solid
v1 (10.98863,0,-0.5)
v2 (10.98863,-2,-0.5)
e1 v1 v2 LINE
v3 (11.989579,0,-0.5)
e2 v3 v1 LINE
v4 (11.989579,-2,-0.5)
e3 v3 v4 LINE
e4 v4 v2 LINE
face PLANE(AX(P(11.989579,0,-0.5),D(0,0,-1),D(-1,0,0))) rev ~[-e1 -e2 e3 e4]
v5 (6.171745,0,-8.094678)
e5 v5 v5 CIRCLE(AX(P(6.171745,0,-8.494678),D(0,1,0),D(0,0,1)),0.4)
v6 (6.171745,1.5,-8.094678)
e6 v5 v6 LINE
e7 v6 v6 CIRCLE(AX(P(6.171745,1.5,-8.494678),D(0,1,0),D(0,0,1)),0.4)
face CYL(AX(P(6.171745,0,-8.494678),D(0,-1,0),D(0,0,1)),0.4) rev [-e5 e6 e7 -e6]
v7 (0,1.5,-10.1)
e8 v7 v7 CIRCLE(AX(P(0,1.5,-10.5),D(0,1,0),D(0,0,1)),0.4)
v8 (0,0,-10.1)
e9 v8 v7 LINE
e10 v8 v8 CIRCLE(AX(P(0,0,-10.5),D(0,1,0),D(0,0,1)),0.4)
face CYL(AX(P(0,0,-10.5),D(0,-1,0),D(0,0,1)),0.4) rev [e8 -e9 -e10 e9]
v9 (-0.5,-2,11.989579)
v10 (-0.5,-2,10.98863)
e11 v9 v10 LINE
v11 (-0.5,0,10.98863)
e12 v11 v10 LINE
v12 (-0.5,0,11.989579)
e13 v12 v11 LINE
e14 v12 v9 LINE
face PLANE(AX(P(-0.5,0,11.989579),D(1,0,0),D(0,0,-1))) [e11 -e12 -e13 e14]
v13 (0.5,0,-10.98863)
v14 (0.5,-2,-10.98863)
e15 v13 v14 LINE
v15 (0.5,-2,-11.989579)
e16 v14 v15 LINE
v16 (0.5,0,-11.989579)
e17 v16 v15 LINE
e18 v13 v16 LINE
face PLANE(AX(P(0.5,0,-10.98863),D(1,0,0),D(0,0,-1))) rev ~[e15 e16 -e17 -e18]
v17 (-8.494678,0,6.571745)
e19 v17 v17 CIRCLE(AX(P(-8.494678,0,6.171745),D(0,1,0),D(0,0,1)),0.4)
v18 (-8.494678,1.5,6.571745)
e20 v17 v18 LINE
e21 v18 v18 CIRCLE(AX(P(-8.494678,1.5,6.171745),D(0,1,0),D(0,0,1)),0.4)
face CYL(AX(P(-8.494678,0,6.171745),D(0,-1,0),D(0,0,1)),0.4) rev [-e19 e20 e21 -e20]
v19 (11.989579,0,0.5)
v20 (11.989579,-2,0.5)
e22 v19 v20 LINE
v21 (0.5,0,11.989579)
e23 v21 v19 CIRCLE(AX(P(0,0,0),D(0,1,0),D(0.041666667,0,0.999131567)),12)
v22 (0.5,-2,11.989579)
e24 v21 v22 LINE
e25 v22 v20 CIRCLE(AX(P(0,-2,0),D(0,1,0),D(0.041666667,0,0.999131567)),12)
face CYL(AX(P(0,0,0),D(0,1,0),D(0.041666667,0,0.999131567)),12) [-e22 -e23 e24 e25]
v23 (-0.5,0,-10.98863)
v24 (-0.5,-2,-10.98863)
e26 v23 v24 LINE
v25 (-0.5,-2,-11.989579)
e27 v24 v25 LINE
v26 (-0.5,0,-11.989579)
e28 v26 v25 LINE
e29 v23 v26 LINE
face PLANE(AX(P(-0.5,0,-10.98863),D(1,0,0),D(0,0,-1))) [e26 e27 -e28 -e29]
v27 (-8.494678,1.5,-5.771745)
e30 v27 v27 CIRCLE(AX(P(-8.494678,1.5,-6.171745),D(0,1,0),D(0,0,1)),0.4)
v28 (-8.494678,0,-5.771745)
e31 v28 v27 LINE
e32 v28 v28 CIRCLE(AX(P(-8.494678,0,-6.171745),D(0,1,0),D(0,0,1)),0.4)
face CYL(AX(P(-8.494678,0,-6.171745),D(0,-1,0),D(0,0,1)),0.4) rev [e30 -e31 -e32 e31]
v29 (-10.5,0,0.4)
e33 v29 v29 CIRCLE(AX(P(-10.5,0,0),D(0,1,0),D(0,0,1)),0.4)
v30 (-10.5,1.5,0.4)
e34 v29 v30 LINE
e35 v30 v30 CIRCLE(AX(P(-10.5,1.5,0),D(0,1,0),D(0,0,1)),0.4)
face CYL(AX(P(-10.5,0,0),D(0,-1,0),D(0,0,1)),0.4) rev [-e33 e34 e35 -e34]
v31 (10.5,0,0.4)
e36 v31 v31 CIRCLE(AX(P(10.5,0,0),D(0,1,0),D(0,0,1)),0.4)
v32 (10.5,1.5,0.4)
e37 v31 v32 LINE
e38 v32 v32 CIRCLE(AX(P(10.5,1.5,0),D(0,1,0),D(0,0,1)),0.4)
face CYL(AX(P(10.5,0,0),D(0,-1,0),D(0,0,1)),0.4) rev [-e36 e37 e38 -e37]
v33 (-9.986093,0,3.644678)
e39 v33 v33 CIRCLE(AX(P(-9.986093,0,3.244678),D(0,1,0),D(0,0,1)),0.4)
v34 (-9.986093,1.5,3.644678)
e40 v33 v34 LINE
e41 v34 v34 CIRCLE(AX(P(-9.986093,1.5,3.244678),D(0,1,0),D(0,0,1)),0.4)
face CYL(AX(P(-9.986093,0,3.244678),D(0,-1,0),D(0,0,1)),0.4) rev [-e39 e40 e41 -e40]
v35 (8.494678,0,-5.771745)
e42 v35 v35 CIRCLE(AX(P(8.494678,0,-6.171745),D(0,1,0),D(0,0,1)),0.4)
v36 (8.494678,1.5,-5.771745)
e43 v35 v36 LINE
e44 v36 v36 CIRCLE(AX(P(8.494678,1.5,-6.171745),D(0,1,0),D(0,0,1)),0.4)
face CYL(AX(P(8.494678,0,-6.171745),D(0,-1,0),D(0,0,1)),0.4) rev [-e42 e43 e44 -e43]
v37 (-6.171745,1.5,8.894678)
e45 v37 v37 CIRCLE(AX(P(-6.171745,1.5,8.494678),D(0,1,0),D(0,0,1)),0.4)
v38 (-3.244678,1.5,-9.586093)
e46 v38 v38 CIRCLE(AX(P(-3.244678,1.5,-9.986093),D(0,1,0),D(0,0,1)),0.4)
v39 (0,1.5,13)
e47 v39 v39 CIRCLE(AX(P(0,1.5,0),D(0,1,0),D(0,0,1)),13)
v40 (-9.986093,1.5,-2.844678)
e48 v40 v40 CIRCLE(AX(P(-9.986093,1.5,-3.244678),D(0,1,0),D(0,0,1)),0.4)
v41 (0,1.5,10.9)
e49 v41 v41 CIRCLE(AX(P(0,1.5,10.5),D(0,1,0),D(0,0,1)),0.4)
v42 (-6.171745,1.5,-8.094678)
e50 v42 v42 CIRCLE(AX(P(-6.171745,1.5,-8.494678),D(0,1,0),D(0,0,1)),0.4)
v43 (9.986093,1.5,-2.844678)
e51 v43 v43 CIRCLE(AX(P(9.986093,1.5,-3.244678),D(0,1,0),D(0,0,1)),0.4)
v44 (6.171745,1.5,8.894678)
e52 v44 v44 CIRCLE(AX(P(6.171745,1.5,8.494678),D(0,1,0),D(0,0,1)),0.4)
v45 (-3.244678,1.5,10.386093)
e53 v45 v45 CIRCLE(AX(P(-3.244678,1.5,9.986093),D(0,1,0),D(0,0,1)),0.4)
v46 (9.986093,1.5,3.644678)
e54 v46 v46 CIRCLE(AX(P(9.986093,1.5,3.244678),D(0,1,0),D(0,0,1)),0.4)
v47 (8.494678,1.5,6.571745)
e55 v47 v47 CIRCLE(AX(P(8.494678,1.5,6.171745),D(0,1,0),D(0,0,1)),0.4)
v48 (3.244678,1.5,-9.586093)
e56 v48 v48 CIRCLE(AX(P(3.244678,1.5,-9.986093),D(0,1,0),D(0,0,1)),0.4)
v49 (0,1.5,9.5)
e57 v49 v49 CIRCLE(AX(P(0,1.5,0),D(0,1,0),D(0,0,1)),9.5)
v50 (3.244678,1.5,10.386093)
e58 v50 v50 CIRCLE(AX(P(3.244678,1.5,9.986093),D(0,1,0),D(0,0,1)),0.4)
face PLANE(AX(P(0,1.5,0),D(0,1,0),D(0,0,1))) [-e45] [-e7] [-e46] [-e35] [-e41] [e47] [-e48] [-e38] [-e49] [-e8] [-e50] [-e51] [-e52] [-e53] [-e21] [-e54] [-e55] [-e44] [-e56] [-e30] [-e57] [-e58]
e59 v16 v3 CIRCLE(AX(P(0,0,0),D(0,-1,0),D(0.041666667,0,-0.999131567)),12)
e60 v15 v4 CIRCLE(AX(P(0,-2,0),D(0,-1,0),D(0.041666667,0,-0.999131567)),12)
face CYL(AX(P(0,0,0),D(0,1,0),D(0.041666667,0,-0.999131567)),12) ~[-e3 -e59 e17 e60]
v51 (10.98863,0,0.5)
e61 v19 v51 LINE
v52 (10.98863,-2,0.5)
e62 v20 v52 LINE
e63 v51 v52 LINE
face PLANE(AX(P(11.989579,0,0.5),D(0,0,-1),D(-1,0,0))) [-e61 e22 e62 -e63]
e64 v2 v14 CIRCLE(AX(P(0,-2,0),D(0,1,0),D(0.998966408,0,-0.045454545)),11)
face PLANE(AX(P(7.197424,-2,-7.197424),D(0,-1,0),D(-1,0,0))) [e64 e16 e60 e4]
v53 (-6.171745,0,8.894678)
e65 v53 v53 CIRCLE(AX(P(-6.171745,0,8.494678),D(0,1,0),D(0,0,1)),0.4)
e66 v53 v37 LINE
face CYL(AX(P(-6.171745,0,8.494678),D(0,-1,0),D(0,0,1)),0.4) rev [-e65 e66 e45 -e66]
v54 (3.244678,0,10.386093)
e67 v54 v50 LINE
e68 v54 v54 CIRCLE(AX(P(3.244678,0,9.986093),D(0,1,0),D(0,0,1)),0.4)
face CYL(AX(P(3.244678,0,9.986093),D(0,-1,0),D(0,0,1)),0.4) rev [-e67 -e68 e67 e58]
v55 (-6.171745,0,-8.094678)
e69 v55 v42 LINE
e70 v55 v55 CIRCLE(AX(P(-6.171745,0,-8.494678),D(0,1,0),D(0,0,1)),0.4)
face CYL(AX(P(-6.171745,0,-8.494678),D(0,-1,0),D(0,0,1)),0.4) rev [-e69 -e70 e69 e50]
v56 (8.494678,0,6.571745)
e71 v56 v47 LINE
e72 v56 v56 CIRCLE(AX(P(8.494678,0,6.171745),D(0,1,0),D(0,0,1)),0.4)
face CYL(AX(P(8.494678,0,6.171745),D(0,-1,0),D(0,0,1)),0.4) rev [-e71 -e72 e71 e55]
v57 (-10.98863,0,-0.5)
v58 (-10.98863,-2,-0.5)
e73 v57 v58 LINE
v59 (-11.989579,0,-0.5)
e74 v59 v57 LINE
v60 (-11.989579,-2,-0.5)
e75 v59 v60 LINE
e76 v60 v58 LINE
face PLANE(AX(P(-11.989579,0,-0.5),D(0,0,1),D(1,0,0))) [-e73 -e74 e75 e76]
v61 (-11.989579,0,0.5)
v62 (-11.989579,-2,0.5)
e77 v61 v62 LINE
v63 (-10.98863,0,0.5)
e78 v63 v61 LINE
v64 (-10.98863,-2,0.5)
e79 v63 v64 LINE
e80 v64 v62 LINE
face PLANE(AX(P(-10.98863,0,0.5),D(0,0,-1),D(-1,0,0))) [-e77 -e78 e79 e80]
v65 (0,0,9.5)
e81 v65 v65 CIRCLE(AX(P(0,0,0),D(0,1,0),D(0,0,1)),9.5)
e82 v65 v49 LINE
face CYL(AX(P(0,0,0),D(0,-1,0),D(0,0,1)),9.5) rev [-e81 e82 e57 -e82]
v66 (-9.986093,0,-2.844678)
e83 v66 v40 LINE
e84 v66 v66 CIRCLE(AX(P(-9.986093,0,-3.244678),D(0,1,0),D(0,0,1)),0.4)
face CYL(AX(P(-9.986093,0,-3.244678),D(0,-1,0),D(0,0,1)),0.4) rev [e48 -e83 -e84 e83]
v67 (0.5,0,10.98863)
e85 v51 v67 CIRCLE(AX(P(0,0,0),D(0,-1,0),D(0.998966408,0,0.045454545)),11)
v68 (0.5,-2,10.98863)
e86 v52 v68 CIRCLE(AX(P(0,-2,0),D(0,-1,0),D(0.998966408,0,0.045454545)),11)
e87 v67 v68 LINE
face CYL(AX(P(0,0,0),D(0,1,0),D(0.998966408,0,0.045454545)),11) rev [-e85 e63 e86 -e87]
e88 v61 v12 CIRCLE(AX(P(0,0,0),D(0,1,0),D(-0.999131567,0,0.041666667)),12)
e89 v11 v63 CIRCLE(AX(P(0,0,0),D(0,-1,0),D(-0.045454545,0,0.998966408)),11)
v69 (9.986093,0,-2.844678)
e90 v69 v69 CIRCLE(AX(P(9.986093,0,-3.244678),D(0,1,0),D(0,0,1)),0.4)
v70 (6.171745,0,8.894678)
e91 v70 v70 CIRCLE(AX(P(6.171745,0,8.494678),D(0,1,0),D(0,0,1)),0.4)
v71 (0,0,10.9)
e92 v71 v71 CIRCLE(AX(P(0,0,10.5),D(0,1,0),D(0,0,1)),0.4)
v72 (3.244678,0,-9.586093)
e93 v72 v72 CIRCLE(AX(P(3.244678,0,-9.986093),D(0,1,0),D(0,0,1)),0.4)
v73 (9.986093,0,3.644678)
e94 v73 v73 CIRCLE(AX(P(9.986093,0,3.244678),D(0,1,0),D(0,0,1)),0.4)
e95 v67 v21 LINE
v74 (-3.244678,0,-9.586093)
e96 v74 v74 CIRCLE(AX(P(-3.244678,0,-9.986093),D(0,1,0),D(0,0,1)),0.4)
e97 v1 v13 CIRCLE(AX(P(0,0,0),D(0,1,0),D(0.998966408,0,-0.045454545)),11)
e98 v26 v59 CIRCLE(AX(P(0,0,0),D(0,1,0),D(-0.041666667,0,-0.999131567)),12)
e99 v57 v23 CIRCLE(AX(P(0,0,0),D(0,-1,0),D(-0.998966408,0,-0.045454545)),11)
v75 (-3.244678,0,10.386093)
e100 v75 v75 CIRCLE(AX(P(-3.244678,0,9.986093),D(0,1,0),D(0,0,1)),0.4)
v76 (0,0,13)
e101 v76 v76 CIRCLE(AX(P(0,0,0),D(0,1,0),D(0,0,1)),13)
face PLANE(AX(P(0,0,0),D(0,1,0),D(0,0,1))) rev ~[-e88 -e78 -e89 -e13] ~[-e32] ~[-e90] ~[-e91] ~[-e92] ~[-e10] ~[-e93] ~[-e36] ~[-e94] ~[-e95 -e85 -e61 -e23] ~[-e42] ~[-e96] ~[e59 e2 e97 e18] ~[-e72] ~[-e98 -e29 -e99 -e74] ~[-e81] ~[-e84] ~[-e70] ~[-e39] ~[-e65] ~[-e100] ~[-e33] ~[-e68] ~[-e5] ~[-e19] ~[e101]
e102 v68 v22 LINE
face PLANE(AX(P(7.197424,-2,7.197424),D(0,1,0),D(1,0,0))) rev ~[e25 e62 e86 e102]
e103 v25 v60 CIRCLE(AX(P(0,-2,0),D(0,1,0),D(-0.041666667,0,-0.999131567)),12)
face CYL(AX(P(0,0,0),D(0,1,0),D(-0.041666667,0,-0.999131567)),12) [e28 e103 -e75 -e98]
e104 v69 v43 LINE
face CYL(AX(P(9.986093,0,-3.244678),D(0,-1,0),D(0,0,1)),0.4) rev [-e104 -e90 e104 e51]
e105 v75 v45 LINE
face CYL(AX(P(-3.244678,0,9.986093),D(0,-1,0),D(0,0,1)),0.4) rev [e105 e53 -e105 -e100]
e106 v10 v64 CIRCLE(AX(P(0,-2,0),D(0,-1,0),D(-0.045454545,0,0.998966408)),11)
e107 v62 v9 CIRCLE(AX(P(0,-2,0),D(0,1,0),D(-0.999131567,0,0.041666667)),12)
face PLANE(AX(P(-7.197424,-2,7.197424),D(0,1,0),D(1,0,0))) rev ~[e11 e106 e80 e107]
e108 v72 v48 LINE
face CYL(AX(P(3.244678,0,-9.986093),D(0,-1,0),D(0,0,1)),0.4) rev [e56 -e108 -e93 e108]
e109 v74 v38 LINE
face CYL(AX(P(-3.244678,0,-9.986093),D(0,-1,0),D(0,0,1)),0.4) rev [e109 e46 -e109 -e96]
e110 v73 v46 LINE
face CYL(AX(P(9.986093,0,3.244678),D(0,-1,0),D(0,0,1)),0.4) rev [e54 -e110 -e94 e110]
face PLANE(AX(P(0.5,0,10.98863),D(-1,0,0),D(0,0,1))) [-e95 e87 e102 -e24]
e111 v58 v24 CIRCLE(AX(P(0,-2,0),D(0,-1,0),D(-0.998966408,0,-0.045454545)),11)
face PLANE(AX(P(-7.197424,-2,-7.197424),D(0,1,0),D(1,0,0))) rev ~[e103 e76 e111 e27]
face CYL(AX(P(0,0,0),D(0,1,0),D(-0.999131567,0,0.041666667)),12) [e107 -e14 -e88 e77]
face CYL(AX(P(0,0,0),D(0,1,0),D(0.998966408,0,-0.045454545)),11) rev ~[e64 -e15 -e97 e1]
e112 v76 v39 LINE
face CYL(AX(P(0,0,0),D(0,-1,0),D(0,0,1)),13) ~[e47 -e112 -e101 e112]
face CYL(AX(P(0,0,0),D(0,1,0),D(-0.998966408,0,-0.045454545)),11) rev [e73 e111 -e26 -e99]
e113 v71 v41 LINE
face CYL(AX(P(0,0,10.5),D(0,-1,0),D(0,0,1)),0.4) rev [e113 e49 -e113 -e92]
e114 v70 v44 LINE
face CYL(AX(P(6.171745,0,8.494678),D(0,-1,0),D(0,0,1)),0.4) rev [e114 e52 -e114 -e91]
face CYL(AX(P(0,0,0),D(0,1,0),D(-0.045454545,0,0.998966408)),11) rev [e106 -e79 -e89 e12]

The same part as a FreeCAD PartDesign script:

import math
import FreeCAD as App
import Part
import Sketcher

doc = App.newDocument("Part")
body = doc.addObject("PartDesign::Body", "Body")

sketch1 = body.newObject("Sketcher::SketchObject", "Sketch")
sketch1.AttachmentSupport = (doc.getObject("XZ_Plane"), [""])
sketch1.MapMode = "FlatFace"
sketch1.addGeometry(Part.Circle(App.Vector(0, 0, 0), App.Vector(0, 0, 1), 13), False)
sketch1.addGeometry(Part.Circle(App.Vector(-8.494678, -6.171745, 0), App.Vector(0, 0, 1), 0.4), False)
sketch1.addGeometry(Part.Circle(App.Vector(-6.171745, -8.494678, 0), App.Vector(0, 0, 1), 0.4), False)
sketch1.addGeometry(Part.Circle(App.Vector(-9.986093, -3.244678, 0), App.Vector(0, 0, 1), 0.4), False)
sketch1.addGeometry(Part.Circle(App.Vector(-3.244678, -9.986093, 0), App.Vector(0, 0, 1), 0.4), False)
sketch1.addGeometry(Part.Circle(App.Vector(0, -10.5, 0), App.Vector(0, 0, 1), 0.4), False)
sketch1.addGeometry(Part.Circle(App.Vector(0, 0, 0), App.Vector(0, 0, 1), 9.5), False)
sketch1.addGeometry(Part.Circle(App.Vector(-10.5, 0, 0), App.Vector(0, 0, 1), 0.4), False)
sketch1.addGeometry(Part.Circle(App.Vector(-9.986093, 3.244678, 0), App.Vector(0, 0, 1), 0.4), False)
sketch1.addGeometry(Part.Circle(App.Vector(-8.494678, 6.171745, 0), App.Vector(0, 0, 1), 0.4), False)
sketch1.addGeometry(Part.Circle(App.Vector(-6.171745, 8.494678, 0), App.Vector(0, 0, 1), 0.4), False)
sketch1.addGeometry(Part.Circle(App.Vector(-3.244678, 9.986093, 0), App.Vector(0, 0, 1), 0.4), False)
sketch1.addGeometry(Part.Circle(App.Vector(3.244678, -9.986093, 0), App.Vector(0, 0, 1), 0.4), False)
sketch1.addGeometry(Part.Circle(App.Vector(6.171745, -8.494678, 0), App.Vector(0, 0, 1), 0.4), False)
sketch1.addGeometry(Part.Circle(App.Vector(8.494678, -6.171745, 0), App.Vector(0, 0, 1), 0.4), False)
sketch1.addGeometry(Part.Circle(App.Vector(9.986093, -3.244678, 0), App.Vector(0, 0, 1), 0.4), False)
sketch1.addGeometry(Part.Circle(App.Vector(10.5, 0, 0), App.Vector(0, 0, 1), 0.4), False)
sketch1.addGeometry(Part.Circle(App.Vector(0, 10.5, 0), App.Vector(0, 0, 1), 0.4), False)
sketch1.addGeometry(Part.Circle(App.Vector(3.244678, 9.986093, 0), App.Vector(0, 0, 1), 0.4), False)
sketch1.addGeometry(Part.Circle(App.Vector(9.986093, 3.244678, 0), App.Vector(0, 0, 1), 0.4), False)
sketch1.addGeometry(Part.Circle(App.Vector(6.171745, 8.494678, 0), App.Vector(0, 0, 1), 0.4), False)
sketch1.addGeometry(Part.Circle(App.Vector(8.494678, 6.171745, 0), App.Vector(0, 0, 1), 0.4), False)
sketch1.addConstraint(Sketcher.Constraint("Coincident", 0, 3, -1, 1))
sketch1.addConstraint(Sketcher.Constraint("Coincident", 6, 3, -1, 1))
sketch1.addConstraint(Sketcher.Constraint("Equal", 1, 2))
sketch1.addConstraint(Sketcher.Constraint("Equal", 2, 3))
sketch1.addConstraint(Sketcher.Constraint("Equal", 3, 4))
sketch1.addConstraint(Sketcher.Constraint("Equal", 4, 5))
sketch1.addConstraint(Sketcher.Constraint("Equal", 5, 7))
sketch1.addConstraint(Sketcher.Constraint("Equal", 7, 8))
sketch1.addConstraint(Sketcher.Constraint("Equal", 8, 9))
sketch1.addConstraint(Sketcher.Constraint("Equal", 9, 10))
sketch1.addConstraint(Sketcher.Constraint("Equal", 10, 11))
sketch1.addConstraint(Sketcher.Constraint("Equal", 11, 12))
sketch1.addConstraint(Sketcher.Constraint("Equal", 12, 13))
sketch1.addConstraint(Sketcher.Constraint("Equal", 13, 14))
sketch1.addConstraint(Sketcher.Constraint("Equal", 14, 15))
sketch1.addConstraint(Sketcher.Constraint("Equal", 15, 16))
sketch1.addConstraint(Sketcher.Constraint("Equal", 16, 17))
sketch1.addConstraint(Sketcher.Constraint("Equal", 17, 18))
sketch1.addConstraint(Sketcher.Constraint("Equal", 18, 19))
sketch1.addConstraint(Sketcher.Constraint("Equal", 19, 20))
sketch1.addConstraint(Sketcher.Constraint("Equal", 20, 21))
sketch1.addConstraint(Sketcher.Constraint("Symmetric", 11, 3, 12, 3, -1, 1))
sketch1.addConstraint(Sketcher.Constraint("Symmetric", 10, 3, 13, 3, -1, 1))
sketch1.addConstraint(Sketcher.Constraint("Symmetric", 9, 3, 14, 3, -1, 1))
sketch1.addConstraint(Sketcher.Constraint("Symmetric", 8, 3, 15, 3, -1, 1))
sketch1.addConstraint(Sketcher.Constraint("Symmetric", 7, 3, 16, 3, -1, 1))
sketch1.addConstraint(Sketcher.Constraint("Symmetric", 5, 3, 17, 3, -1, 1))
sketch1.addConstraint(Sketcher.Constraint("Symmetric", 4, 3, 18, 3, -1, 1))
sketch1.addConstraint(Sketcher.Constraint("Symmetric", 3, 3, 19, 3, -1, 1))
sketch1.addConstraint(Sketcher.Constraint("Symmetric", 2, 3, 20, 3, -1, 1))
sketch1.addConstraint(Sketcher.Constraint("Symmetric", 1, 3, 21, 3, -1, 1))
sketch1.addConstraint(Sketcher.Constraint("Symmetric", 4, 3, 12, 3, -2))
sketch1.addConstraint(Sketcher.Constraint("Symmetric", 2, 3, 13, 3, -2))
sketch1.addConstraint(Sketcher.Constraint("Symmetric", 1, 3, 14, 3, -2))
sketch1.addConstraint(Sketcher.Constraint("Symmetric", 3, 3, 15, 3, -2))
sketch1.addConstraint(Sketcher.Constraint("PointOnObject", 5, 3, -2))
sketch1.addConstraint(Sketcher.Constraint("PointOnObject", 7, 3, -1))
sketch1.addConstraint(Sketcher.Constraint("Diameter", 0, 26.0))
sketch1.addConstraint(Sketcher.Constraint("Diameter", 6, 19.0))
sketch1.addConstraint(Sketcher.Constraint("Diameter", 1, 0.8))
sketch1.addConstraint(Sketcher.Constraint("DistanceY", 5, 3, -1, 1, 10.5))
sketch1.addConstraint(Sketcher.Constraint("DistanceX", 7, 3, -1, 1, 10.5))
sketch1.addConstraint(Sketcher.Constraint("DistanceY", 2, 3, 3, 3, 5.25))
sketch1.addConstraint(Sketcher.Constraint("DistanceX", 1, 3, 4, 3, 5.25))
sketch1.addConstraint(Sketcher.Constraint("DistanceX", 1, 3, -1, 1, 8.494678))
sketch1.addConstraint(Sketcher.Constraint("DistanceY", 2, 3, -1, 1, 8.494678))
sketch1.addConstraint(Sketcher.Constraint("DistanceX", 3, 3, 2, 3, 3.814348))
sketch1.addConstraint(Sketcher.Constraint("DistanceY", 4, 3, 1, 3, 3.814348))
sketch1.addConstraint(Sketcher.Constraint("DistanceY", 1, 3, -1, 1, 6.171745))
sketch1.addConstraint(Sketcher.Constraint("DistanceX", 2, 3, -1, 1, 6.171745))
pad1 = body.newObject("PartDesign::Pad", "Pad")
pad1.Profile = sketch1
pad1.Length = 1.5
pad1.Reversed = True

sketch2 = body.newObject("Sketcher::SketchObject", "Sketch001")
sketch2.AttachmentSupport = (doc.getObject("XZ_Plane"), [""])
sketch2.MapMode = "FlatFace"
sketch2.addGeometry(Part.LineSegment(App.Vector(10.98863, -0.5, 0), App.Vector(11.989579, -0.5, 0)), False)
sketch2.addGeometry(Part.ArcOfCircle(Part.Circle(App.Vector(0, 0, 0), App.Vector(0, 0, 1), 12), math.radians(-87.611985), math.radians(-2.388015)), False)
sketch2.addGeometry(Part.LineSegment(App.Vector(0.5, -11.989579, 0), App.Vector(0.5, -10.98863, 0)), False)
sketch2.addGeometry(Part.ArcOfCircle(Part.Circle(App.Vector(0, 0, 0), App.Vector(0, 0, 1), 11), math.radians(-87.394749), math.radians(-2.605251)), False)
sketch2.addGeometry(Part.LineSegment(App.Vector(11.989579, 0.5, 0), App.Vector(10.98863, 0.5, 0)), False)
sketch2.addGeometry(Part.ArcOfCircle(Part.Circle(App.Vector(0, 0, 0), App.Vector(0, 0, 1), 11), math.radians(2.605251), math.radians(87.394749)), False)
sketch2.addGeometry(Part.LineSegment(App.Vector(0.5, 10.98863, 0), App.Vector(0.5, 11.989579, 0)), False)
sketch2.addGeometry(Part.ArcOfCircle(Part.Circle(App.Vector(0, 0, 0), App.Vector(0, 0, 1), 12), math.radians(2.388015), math.radians(87.611985)), False)
sketch2.addGeometry(Part.LineSegment(App.Vector(-0.5, 11.989579, 0), App.Vector(-0.5, 10.98863, 0)), False)
sketch2.addGeometry(Part.ArcOfCircle(Part.Circle(App.Vector(0, 0, 0), App.Vector(0, 0, 1), 11), math.radians(92.605251), math.radians(177.394749)), False)
sketch2.addGeometry(Part.LineSegment(App.Vector(-10.98863, 0.5, 0), App.Vector(-11.989579, 0.5, 0)), False)
sketch2.addGeometry(Part.ArcOfCircle(Part.Circle(App.Vector(0, 0, 0), App.Vector(0, 0, 1), 12), math.radians(92.388015), math.radians(177.611985)), False)
sketch2.addGeometry(Part.LineSegment(App.Vector(-0.5, -10.98863, 0), App.Vector(-0.5, -11.989579, 0)), False)
sketch2.addGeometry(Part.ArcOfCircle(Part.Circle(App.Vector(0, 0, 0), App.Vector(0, 0, 1), 12), math.radians(-177.611985), math.radians(-92.388015)), False)
sketch2.addGeometry(Part.LineSegment(App.Vector(-11.989579, -0.5, 0), App.Vector(-10.98863, -0.5, 0)), False)
sketch2.addGeometry(Part.ArcOfCircle(Part.Circle(App.Vector(0, 0, 0), App.Vector(0, 0, 1), 11), math.radians(-177.394749), math.radians(-92.605251)), False)
sketch2.addConstraint(Sketcher.Constraint("Coincident", 0, 2, 1, 2))
sketch2.addConstraint(Sketcher.Constraint("Coincident", 1, 1, 2, 1))
sketch2.addConstraint(Sketcher.Constraint("Coincident", 2, 2, 3, 1))
sketch2.addConstraint(Sketcher.Constraint("Coincident", 3, 2, 0, 1))
sketch2.addConstraint(Sketcher.Constraint("Coincident", 4, 2, 5, 1))
sketch2.addConstraint(Sketcher.Constraint("Coincident", 5, 2, 6, 1))
sketch2.addConstraint(Sketcher.Constraint("Coincident", 6, 2, 7, 2))
sketch2.addConstraint(Sketcher.Constraint("Coincident", 7, 1, 4, 1))
sketch2.addConstraint(Sketcher.Constraint("Coincident", 8, 2, 9, 1))
sketch2.addConstraint(Sketcher.Constraint("Coincident", 9, 2, 10, 1))
sketch2.addConstraint(Sketcher.Constraint("Coincident", 10, 2, 11, 2))
sketch2.addConstraint(Sketcher.Constraint("Coincident", 11, 1, 8, 1))
sketch2.addConstraint(Sketcher.Constraint("Coincident", 12, 2, 13, 2))
sketch2.addConstraint(Sketcher.Constraint("Coincident", 13, 1, 14, 1))
sketch2.addConstraint(Sketcher.Constraint("Coincident", 14, 2, 15, 1))
sketch2.addConstraint(Sketcher.Constraint("Coincident", 15, 2, 12, 1))
sketch2.addConstraint(Sketcher.Constraint("Horizontal", 0))
sketch2.addConstraint(Sketcher.Constraint("Vertical", 2))
sketch2.addConstraint(Sketcher.Constraint("Horizontal", 4))
sketch2.addConstraint(Sketcher.Constraint("Vertical", 6))
sketch2.addConstraint(Sketcher.Constraint("Vertical", 8))
sketch2.addConstraint(Sketcher.Constraint("Horizontal", 10))
sketch2.addConstraint(Sketcher.Constraint("Vertical", 12))
sketch2.addConstraint(Sketcher.Constraint("Horizontal", 14))
sketch2.addConstraint(Sketcher.Constraint("Coincident", 1, 3, -1, 1))
sketch2.addConstraint(Sketcher.Constraint("Coincident", 3, 3, -1, 1))
sketch2.addConstraint(Sketcher.Constraint("Coincident", 5, 3, -1, 1))
sketch2.addConstraint(Sketcher.Constraint("Coincident", 7, 3, -1, 1))
sketch2.addConstraint(Sketcher.Constraint("Coincident", 9, 3, -1, 1))
sketch2.addConstraint(Sketcher.Constraint("Coincident", 11, 3, -1, 1))
sketch2.addConstraint(Sketcher.Constraint("Coincident", 13, 3, -1, 1))
sketch2.addConstraint(Sketcher.Constraint("Coincident", 15, 3, -1, 1))
sketch2.addConstraint(Sketcher.Constraint("Equal", 3, 5))
sketch2.addConstraint(Sketcher.Constraint("Equal", 1, 7))
sketch2.addConstraint(Sketcher.Constraint("Equal", 5, 9))
sketch2.addConstraint(Sketcher.Constraint("Equal", 7, 11))
sketch2.addConstraint(Sketcher.Constraint("Equal", 11, 13))
sketch2.addConstraint(Sketcher.Constraint("Equal", 9, 15))
sketch2.addConstraint(Sketcher.Constraint("Horizontal", 5, 2, 8, 2))
sketch2.addConstraint(Sketcher.Constraint("Horizontal", 7, 1, 9, 2))
sketch2.addConstraint(Sketcher.Constraint("Horizontal", 1, 1, 12, 2))
sketch2.addConstraint(Sketcher.Constraint("Horizontal", 3, 2, 13, 1))
sketch2.addConstraint(Sketcher.Constraint("Vertical", 3, 2, 4, 2))
sketch2.addConstraint(Sketcher.Constraint("Vertical", 2, 2, 5, 2))
sketch2.addConstraint(Sketcher.Constraint("Radius", 1, 12.0))
sketch2.addConstraint(Sketcher.Constraint("Radius", 3, 11.0))
sketch2.addConstraint(Sketcher.Constraint("DistanceY", 3, 2, 4, 2, 1.0))
sketch2.addConstraint(Sketcher.Constraint("DistanceX", 8, 2, 5, 2, 1.0))
pad2 = body.newObject("PartDesign::Pad", "Pad001")
pad2.Profile = sketch2
pad2.Length = 2

doc.recompute()
